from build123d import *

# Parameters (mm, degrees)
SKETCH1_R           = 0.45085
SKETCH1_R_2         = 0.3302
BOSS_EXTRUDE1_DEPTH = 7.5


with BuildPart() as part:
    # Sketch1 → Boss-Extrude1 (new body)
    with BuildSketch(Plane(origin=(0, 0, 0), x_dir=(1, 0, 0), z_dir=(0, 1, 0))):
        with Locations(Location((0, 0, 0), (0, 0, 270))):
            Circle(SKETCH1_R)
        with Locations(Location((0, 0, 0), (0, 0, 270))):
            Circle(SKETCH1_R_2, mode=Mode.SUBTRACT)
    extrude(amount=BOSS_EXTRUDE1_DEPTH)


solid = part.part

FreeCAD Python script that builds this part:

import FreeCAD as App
import Part
import Sketcher

V = App.Vector

doc = App.newDocument("Part")
params = doc.addObject("Spreadsheet::Sheet", "Params")
for row, (alias, value) in enumerate([
    ("pad1_length", "7.5 mm"),
], start=1):
    params.set(f"A{row}", alias)
    params.set(f"B{row}", "=" + value)
    params.setAlias(f"B{row}", alias)

body = doc.addObject("PartDesign::Body", "Body")

# Sketch on XZ plane
sketch1 = body.newObject("Sketcher::SketchObject", "Sketch")
sketch1.AttachmentSupport = (doc.getObject("XZ_Plane"), [""])
sketch1.MapMode = "FlatFace"
sketch1.addGeometry(Part.Circle(V(0, 0, 0), V(0, 0, 1), 0.45085), False)
sketch1.addGeometry(Part.Circle(V(0, 0, 0), V(0, 0, 1), 0.3302), False)
sketch1.addConstraint(Sketcher.Constraint("Coincident", 0, 3, -1, 1))
sketch1.addConstraint(Sketcher.Constraint("Coincident", 1, 3, -1, 1))
sketch1.addConstraint(Sketcher.Constraint("Diameter", 0, 0.9017))
sketch1.addConstraint(Sketcher.Constraint("Diameter", 1, 0.6604))
pad1 = body.newObject("PartDesign::Pad", "Pad")
pad1.Profile = sketch1
pad1.setExpression("Length", "Params.pad1_length")
pad1.Reversed = True

doc.recompute()
